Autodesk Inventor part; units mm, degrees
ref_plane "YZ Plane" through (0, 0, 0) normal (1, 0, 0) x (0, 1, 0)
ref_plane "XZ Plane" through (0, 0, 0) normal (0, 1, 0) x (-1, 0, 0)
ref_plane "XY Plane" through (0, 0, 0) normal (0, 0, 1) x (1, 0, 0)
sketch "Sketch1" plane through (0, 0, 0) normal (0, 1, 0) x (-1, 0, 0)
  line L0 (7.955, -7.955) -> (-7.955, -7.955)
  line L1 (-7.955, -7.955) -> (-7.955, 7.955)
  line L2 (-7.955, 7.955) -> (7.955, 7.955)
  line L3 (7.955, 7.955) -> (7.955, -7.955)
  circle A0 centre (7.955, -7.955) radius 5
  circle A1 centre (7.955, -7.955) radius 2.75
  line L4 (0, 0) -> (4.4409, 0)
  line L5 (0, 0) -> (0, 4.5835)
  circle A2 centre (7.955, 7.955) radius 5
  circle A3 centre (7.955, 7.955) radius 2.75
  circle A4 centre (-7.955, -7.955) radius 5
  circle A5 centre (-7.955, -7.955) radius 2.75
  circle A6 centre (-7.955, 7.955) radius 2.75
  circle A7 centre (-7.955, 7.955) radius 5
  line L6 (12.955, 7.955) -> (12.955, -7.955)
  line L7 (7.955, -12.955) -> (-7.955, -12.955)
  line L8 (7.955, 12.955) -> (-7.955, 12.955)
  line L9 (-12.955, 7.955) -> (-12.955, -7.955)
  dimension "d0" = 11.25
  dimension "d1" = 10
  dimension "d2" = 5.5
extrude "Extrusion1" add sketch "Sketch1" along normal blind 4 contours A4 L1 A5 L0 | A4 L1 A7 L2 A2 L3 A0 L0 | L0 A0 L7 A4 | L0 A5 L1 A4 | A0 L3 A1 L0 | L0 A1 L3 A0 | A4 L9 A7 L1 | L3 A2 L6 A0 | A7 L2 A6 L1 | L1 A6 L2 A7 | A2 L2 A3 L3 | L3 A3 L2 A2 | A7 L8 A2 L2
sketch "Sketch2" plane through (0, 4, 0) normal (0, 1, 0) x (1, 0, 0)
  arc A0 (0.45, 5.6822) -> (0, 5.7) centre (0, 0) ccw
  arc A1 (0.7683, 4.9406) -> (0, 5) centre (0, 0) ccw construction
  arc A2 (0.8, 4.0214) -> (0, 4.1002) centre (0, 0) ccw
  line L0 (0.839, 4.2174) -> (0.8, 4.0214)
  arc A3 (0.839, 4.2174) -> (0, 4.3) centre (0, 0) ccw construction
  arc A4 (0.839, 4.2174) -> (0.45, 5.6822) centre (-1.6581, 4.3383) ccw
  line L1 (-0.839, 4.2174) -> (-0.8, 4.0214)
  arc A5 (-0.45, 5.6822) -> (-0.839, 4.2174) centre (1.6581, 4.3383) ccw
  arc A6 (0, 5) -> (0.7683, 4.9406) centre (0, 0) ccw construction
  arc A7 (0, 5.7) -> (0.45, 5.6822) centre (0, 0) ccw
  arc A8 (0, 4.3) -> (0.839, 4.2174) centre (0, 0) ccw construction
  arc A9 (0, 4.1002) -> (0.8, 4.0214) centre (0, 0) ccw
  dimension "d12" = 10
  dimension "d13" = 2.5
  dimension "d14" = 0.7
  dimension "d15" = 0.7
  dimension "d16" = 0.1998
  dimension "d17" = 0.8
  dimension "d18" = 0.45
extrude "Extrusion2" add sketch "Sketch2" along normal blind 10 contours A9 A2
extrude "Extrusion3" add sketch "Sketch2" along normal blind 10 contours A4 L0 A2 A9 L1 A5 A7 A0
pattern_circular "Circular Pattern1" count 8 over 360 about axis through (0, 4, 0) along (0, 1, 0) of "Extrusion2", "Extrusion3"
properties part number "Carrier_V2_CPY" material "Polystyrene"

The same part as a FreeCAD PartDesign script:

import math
import FreeCAD as App
import Part
import Sketcher
from FreeCAD import Vector

doc = App.newDocument("Part")
body = doc.addObject("PartDesign::Body", "Body")

sketch1 = doc.addObject("Sketcher::SketchObject", "Sketch")
body.addObject(sketch1)
sketch1.AttachmentSupport = (doc.XZ_Plane, [""])
sketch1.MapMode = "FlatFace"
sketch1.addGeometry(Part.ArcOfCircle(Part.Circle(Vector(8, -8, 0), Vector(0, 0, 1), 5), math.radians(-90), math.radians(0)), False)
sketch1.addGeometry(Part.LineSegment(Vector(8, -13, 0), Vector(-8, -13, 0)), False)
sketch1.addGeometry(Part.ArcOfCircle(Part.Circle(Vector(-8, -8, 0), Vector(0, 0, 1), 5), math.radians(180), math.radians(270)), False)
sketch1.addGeometry(Part.LineSegment(Vector(-13, -8, 0), Vector(-13, 8, 0)), False)
sketch1.addGeometry(Part.ArcOfCircle(Part.Circle(Vector(-8, 8, 0), Vector(0, 0, 1), 5), math.radians(90), math.radians(180)), False)
sketch1.addGeometry(Part.LineSegment(Vector(-8, 13, 0), Vector(8, 13, 0)), False)
sketch1.addGeometry(Part.ArcOfCircle(Part.Circle(Vector(8, 8, 0), Vector(0, 0, 1), 5), math.radians(0), math.radians(90)), False)
sketch1.addGeometry(Part.LineSegment(Vector(13, 8, 0), Vector(13, -8, 0)), False)
sketch1.addGeometry(Part.Circle(Vector(8, -8, 0), Vector(0, 0, 1), 2.8), False)
sketch1.addGeometry(Part.Circle(Vector(-8, -8, 0), Vector(0, 0, 1), 2.8), False)
sketch1.addGeometry(Part.Circle(Vector(8, 8, 0), Vector(0, 0, 1), 2.8), False)
sketch1.addGeometry(Part.Circle(Vector(-8, 8, 0), Vector(0, 0, 1), 2.8), False)
sketch1.addConstraint(Sketcher.Constraint("Tangent", 0, 1, 1, 1))
sketch1.addConstraint(Sketcher.Constraint("Tangent", 1, 2, 2, 2))
sketch1.addConstraint(Sketcher.Constraint("Tangent", 2, 1, 3, 1))
sketch1.addConstraint(Sketcher.Constraint("Tangent", 3, 2, 4, 2))
sketch1.addConstraint(Sketcher.Constraint("Tangent", 4, 1, 5, 1))
sketch1.addConstraint(Sketcher.Constraint("Tangent", 5, 2, 6, 2))
sketch1.addConstraint(Sketcher.Constraint("Tangent", 6, 1, 7, 1))
sketch1.addConstraint(Sketcher.Constraint("Tangent", 7, 2, 0, 2))
sketch1.addConstraint(Sketcher.Constraint("Horizontal", 1))
sketch1.addConstraint(Sketcher.Constraint("Vertical", 3))
sketch1.addConstraint(Sketcher.Constraint("Horizontal", 5))
sketch1.addConstraint(Sketcher.Constraint("Vertical", 7))
sketch1.addConstraint(Sketcher.Constraint("Coincident", 8, 3, 0, 3))
sketch1.addConstraint(Sketcher.Constraint("Coincident", 9, 3, 2, 3))
sketch1.addConstraint(Sketcher.Constraint("Coincident", 10, 3, 6, 3))
sketch1.addConstraint(Sketcher.Constraint("Coincident", 11, 3, 4, 3))
sketch1.addConstraint(Sketcher.Constraint("Equal", 0, 2))
sketch1.addConstraint(Sketcher.Constraint("Equal", 2, 4))
sketch1.addConstraint(Sketcher.Constraint("Equal", 4, 6))
sketch1.addConstraint(Sketcher.Constraint("Equal", 8, 9))
sketch1.addConstraint(Sketcher.Constraint("Equal", 9, 10))
sketch1.addConstraint(Sketcher.Constraint("Equal", 10, 11))
sketch1.addConstraint(Sketcher.Constraint("Symmetric", 0, 3, 4, 3, -1, 1))
sketch1.addConstraint(Sketcher.Constraint("Equal", 5, 3))
sketch1.addConstraint(Sketcher.Constraint("Radius", 0, 5.0))
sketch1.addConstraint(Sketcher.Constraint("Diameter", 8, 5.5))
sketch1.addConstraint(Sketcher.Constraint("DistanceX", 1, 2, 1, 1, 15.91))
pad1 = doc.addObject("PartDesign::Pad", "Pad")
body.addObject(pad1)
pad1.Profile = sketch1
pad1.Length = 4
pad1.Reversed = True

sketch2 = doc.addObject("Sketcher::SketchObject", "Sketch001")
body.addObject(sketch2)
sketch2.AttachmentSupport = (doc.XZ_Plane, [""])
sketch2.MapMode = "FlatFace"
sketch2.AttachmentOffset = App.Placement(Vector(0, 0, -4), App.Rotation())
sketch2.addGeometry(Part.ArcOfCircle(Part.Circle(Vector(0, 0, 0), Vector(0, 0, 1), 4.1), math.radians(-79), math.radians(270)), False)
sketch2.addGeometry(Part.ArcOfCircle(Part.Circle(Vector(0, 0, 0), Vector(0, 0, 1), 4.1), math.radians(-90), math.radians(-78.75)), False)
sketch2.addConstraint(Sketcher.Constraint("Tangent", 0, 1, 1, 2))
sketch2.addConstraint(Sketcher.Constraint("Coincident", 1, 1, 0, 2))
sketch2.addConstraint(Sketcher.Constraint("Coincident", 0, 3, -1, 1))
sketch2.addConstraint(Sketcher.Constraint("PointOnObject", 1, 1, -2))
sketch2.addConstraint(Sketcher.Constraint("DistanceX", -1, 1, 0, 1, 0.8))
sketch2.addConstraint(Sketcher.Constraint("Radius", 0, 4.1002))
pad2 = doc.addObject("PartDesign::Pad", "Pad001")
body.addObject(pad2)
pad2.Profile = sketch2
pad2.Length = 10
pad2.Reversed = True

sketch3 = doc.addObject("Sketcher::SketchObject", "Sketch002")
body.addObject(sketch3)
sketch3.AttachmentSupport = (doc.XZ_Plane, [""])
sketch3.MapMode = "FlatFace"
sketch3.AttachmentOffset = App.Placement(Vector(0, 0, -4), App.Rotation())
sketch3.addGeometry(Part.ArcOfCircle(Part.Circle(Vector(-1.66, -4.34, 0), Vector(0, 0, 1), 2.5), math.radians(-33), math.radians(3)), False)
sketch3.addGeometry(Part.ArcOfCircle(Part.Circle(Vector(0, 0.01, 0), Vector(0, 0, 1), 5.71), math.radians(-90), math.radians(-85.47)), False)
sketch3.addGeometry(Part.ArcOfCircle(Part.Circle(Vector(0, 0, 0), Vector(0, 0, 1), 5.7), math.radians(-94.53), math.radians(-90)), False)
sketch3.addGeometry(Part.ArcOfCircle(Part.Circle(Vector(1.66, -4.34, 0), Vector(0, 0, 1), 2.5), math.radians(177), math.radians(213)), False)
sketch3.addGeometry(Part.LineSegment(Vector(-0.84, -4.22, 0), Vector(-0.8, -4.02, 0)), False)
sketch3.addGeometry(Part.ArcOfCircle(Part.Circle(Vector(0, 0, 0), Vector(0, 0, 1), 4.1), math.radians(-101.25), math.radians(-90)), False)
sketch3.addGeometry(Part.ArcOfCircle(Part.Circle(Vector(0, 0, 0), Vector(0, 0, 1), 4.1), math.radians(-90), math.radians(-78.75)), False)
sketch3.addGeometry(Part.LineSegment(Vector(0.8, -4.02, 0), Vector(0.84, -4.22, 0)), False)
sketch3.addConstraint(Sketcher.Constraint("Coincident", 0, 1, 1, 2))
sketch3.addConstraint(Sketcher.Constraint("Tangent", 1, 1, 2, 2))
sketch3.addConstraint(Sketcher.Constraint("Coincident", 2, 1, 3, 2))
sketch3.addConstraint(Sketcher.Constraint("Coincident", 3, 1, 4, 1))
sketch3.addConstraint(Sketcher.Constraint("Coincident", 4, 2, 5, 1))
sketch3.addConstraint(Sketcher.Constraint("Tangent", 5, 2, 6, 1))
sketch3.addConstraint(Sketcher.Constraint("Coincident", 6, 2, 7, 1))
sketch3.addConstraint(Sketcher.Constraint("Coincident", 7, 2, 0, 2))
sketch3.addConstraint(Sketcher.Constraint("Coincident", 2, 3, -1, 1))
sketch3.addConstraint(Sketcher.Constraint("Coincident", 5, 3, -1, 1))
sketch3.addConstraint(Sketcher.Constraint("Equal", 0, 3))
sketch3.addConstraint(Sketcher.Constraint("Equal", 5, 6))
sketch3.addConstraint(Sketcher.Constraint("Symmetric", 0, 3, 3, 3, -2))
sketch3.addConstraint(Sketcher.Constraint("PointOnObject", 1, 1, -2))
sketch3.addConstraint(Sketcher.Constraint("PointOnObject", 5, 2, -2))
sketch3.addConstraint(Sketcher.Constraint("Horizontal", 4, 2, 6, 2))
sketch3.addConstraint(Sketcher.Constraint("Horizontal", 3, 1, 7, 2))
sketch3.addConstraint(Sketcher.Constraint("Radius", 0, 2.5))
sketch3.addConstraint(Sketcher.Constraint("DistanceX", 4, 2, -1, 1, 0.8))
sketch3.addConstraint(Sketcher.Constraint("Radius", 2, 5.7))
sketch3.addConstraint(Sketcher.Constraint("DistanceX", -1, 1, 0, 1, 0.45))
sketch3.addConstraint(Sketcher.Constraint("Distance", 4, 0.1998))
sketch3.addConstraint(Sketcher.Constraint("Radius", 1, 5.7058))
sketch3.addConstraint(Sketcher.Constraint("Radius", 5, 4.1002))
sketch3.addConstraint(Sketcher.Constraint("DistanceX", 0, 3, -1, 1, 1.658))
pad3 = doc.addObject("PartDesign::Pad", "Pad002")
body.addObject(pad3)
pad3.Profile = sketch3
pad3.Length = 10
pad3.Reversed = True
doc.recompute()

polarpattern = doc.addObject("PartDesign::PolarPattern", "PolarPattern")
body.addObject(polarpattern)
polarpattern.Originals = [pad2, pad3]
polarpattern.Axis = (doc.Y_Axis, [""])
polarpattern.Angle = 360
polarpattern.Occurrences = 8
body.Tip = polarpattern

doc.recompute()
